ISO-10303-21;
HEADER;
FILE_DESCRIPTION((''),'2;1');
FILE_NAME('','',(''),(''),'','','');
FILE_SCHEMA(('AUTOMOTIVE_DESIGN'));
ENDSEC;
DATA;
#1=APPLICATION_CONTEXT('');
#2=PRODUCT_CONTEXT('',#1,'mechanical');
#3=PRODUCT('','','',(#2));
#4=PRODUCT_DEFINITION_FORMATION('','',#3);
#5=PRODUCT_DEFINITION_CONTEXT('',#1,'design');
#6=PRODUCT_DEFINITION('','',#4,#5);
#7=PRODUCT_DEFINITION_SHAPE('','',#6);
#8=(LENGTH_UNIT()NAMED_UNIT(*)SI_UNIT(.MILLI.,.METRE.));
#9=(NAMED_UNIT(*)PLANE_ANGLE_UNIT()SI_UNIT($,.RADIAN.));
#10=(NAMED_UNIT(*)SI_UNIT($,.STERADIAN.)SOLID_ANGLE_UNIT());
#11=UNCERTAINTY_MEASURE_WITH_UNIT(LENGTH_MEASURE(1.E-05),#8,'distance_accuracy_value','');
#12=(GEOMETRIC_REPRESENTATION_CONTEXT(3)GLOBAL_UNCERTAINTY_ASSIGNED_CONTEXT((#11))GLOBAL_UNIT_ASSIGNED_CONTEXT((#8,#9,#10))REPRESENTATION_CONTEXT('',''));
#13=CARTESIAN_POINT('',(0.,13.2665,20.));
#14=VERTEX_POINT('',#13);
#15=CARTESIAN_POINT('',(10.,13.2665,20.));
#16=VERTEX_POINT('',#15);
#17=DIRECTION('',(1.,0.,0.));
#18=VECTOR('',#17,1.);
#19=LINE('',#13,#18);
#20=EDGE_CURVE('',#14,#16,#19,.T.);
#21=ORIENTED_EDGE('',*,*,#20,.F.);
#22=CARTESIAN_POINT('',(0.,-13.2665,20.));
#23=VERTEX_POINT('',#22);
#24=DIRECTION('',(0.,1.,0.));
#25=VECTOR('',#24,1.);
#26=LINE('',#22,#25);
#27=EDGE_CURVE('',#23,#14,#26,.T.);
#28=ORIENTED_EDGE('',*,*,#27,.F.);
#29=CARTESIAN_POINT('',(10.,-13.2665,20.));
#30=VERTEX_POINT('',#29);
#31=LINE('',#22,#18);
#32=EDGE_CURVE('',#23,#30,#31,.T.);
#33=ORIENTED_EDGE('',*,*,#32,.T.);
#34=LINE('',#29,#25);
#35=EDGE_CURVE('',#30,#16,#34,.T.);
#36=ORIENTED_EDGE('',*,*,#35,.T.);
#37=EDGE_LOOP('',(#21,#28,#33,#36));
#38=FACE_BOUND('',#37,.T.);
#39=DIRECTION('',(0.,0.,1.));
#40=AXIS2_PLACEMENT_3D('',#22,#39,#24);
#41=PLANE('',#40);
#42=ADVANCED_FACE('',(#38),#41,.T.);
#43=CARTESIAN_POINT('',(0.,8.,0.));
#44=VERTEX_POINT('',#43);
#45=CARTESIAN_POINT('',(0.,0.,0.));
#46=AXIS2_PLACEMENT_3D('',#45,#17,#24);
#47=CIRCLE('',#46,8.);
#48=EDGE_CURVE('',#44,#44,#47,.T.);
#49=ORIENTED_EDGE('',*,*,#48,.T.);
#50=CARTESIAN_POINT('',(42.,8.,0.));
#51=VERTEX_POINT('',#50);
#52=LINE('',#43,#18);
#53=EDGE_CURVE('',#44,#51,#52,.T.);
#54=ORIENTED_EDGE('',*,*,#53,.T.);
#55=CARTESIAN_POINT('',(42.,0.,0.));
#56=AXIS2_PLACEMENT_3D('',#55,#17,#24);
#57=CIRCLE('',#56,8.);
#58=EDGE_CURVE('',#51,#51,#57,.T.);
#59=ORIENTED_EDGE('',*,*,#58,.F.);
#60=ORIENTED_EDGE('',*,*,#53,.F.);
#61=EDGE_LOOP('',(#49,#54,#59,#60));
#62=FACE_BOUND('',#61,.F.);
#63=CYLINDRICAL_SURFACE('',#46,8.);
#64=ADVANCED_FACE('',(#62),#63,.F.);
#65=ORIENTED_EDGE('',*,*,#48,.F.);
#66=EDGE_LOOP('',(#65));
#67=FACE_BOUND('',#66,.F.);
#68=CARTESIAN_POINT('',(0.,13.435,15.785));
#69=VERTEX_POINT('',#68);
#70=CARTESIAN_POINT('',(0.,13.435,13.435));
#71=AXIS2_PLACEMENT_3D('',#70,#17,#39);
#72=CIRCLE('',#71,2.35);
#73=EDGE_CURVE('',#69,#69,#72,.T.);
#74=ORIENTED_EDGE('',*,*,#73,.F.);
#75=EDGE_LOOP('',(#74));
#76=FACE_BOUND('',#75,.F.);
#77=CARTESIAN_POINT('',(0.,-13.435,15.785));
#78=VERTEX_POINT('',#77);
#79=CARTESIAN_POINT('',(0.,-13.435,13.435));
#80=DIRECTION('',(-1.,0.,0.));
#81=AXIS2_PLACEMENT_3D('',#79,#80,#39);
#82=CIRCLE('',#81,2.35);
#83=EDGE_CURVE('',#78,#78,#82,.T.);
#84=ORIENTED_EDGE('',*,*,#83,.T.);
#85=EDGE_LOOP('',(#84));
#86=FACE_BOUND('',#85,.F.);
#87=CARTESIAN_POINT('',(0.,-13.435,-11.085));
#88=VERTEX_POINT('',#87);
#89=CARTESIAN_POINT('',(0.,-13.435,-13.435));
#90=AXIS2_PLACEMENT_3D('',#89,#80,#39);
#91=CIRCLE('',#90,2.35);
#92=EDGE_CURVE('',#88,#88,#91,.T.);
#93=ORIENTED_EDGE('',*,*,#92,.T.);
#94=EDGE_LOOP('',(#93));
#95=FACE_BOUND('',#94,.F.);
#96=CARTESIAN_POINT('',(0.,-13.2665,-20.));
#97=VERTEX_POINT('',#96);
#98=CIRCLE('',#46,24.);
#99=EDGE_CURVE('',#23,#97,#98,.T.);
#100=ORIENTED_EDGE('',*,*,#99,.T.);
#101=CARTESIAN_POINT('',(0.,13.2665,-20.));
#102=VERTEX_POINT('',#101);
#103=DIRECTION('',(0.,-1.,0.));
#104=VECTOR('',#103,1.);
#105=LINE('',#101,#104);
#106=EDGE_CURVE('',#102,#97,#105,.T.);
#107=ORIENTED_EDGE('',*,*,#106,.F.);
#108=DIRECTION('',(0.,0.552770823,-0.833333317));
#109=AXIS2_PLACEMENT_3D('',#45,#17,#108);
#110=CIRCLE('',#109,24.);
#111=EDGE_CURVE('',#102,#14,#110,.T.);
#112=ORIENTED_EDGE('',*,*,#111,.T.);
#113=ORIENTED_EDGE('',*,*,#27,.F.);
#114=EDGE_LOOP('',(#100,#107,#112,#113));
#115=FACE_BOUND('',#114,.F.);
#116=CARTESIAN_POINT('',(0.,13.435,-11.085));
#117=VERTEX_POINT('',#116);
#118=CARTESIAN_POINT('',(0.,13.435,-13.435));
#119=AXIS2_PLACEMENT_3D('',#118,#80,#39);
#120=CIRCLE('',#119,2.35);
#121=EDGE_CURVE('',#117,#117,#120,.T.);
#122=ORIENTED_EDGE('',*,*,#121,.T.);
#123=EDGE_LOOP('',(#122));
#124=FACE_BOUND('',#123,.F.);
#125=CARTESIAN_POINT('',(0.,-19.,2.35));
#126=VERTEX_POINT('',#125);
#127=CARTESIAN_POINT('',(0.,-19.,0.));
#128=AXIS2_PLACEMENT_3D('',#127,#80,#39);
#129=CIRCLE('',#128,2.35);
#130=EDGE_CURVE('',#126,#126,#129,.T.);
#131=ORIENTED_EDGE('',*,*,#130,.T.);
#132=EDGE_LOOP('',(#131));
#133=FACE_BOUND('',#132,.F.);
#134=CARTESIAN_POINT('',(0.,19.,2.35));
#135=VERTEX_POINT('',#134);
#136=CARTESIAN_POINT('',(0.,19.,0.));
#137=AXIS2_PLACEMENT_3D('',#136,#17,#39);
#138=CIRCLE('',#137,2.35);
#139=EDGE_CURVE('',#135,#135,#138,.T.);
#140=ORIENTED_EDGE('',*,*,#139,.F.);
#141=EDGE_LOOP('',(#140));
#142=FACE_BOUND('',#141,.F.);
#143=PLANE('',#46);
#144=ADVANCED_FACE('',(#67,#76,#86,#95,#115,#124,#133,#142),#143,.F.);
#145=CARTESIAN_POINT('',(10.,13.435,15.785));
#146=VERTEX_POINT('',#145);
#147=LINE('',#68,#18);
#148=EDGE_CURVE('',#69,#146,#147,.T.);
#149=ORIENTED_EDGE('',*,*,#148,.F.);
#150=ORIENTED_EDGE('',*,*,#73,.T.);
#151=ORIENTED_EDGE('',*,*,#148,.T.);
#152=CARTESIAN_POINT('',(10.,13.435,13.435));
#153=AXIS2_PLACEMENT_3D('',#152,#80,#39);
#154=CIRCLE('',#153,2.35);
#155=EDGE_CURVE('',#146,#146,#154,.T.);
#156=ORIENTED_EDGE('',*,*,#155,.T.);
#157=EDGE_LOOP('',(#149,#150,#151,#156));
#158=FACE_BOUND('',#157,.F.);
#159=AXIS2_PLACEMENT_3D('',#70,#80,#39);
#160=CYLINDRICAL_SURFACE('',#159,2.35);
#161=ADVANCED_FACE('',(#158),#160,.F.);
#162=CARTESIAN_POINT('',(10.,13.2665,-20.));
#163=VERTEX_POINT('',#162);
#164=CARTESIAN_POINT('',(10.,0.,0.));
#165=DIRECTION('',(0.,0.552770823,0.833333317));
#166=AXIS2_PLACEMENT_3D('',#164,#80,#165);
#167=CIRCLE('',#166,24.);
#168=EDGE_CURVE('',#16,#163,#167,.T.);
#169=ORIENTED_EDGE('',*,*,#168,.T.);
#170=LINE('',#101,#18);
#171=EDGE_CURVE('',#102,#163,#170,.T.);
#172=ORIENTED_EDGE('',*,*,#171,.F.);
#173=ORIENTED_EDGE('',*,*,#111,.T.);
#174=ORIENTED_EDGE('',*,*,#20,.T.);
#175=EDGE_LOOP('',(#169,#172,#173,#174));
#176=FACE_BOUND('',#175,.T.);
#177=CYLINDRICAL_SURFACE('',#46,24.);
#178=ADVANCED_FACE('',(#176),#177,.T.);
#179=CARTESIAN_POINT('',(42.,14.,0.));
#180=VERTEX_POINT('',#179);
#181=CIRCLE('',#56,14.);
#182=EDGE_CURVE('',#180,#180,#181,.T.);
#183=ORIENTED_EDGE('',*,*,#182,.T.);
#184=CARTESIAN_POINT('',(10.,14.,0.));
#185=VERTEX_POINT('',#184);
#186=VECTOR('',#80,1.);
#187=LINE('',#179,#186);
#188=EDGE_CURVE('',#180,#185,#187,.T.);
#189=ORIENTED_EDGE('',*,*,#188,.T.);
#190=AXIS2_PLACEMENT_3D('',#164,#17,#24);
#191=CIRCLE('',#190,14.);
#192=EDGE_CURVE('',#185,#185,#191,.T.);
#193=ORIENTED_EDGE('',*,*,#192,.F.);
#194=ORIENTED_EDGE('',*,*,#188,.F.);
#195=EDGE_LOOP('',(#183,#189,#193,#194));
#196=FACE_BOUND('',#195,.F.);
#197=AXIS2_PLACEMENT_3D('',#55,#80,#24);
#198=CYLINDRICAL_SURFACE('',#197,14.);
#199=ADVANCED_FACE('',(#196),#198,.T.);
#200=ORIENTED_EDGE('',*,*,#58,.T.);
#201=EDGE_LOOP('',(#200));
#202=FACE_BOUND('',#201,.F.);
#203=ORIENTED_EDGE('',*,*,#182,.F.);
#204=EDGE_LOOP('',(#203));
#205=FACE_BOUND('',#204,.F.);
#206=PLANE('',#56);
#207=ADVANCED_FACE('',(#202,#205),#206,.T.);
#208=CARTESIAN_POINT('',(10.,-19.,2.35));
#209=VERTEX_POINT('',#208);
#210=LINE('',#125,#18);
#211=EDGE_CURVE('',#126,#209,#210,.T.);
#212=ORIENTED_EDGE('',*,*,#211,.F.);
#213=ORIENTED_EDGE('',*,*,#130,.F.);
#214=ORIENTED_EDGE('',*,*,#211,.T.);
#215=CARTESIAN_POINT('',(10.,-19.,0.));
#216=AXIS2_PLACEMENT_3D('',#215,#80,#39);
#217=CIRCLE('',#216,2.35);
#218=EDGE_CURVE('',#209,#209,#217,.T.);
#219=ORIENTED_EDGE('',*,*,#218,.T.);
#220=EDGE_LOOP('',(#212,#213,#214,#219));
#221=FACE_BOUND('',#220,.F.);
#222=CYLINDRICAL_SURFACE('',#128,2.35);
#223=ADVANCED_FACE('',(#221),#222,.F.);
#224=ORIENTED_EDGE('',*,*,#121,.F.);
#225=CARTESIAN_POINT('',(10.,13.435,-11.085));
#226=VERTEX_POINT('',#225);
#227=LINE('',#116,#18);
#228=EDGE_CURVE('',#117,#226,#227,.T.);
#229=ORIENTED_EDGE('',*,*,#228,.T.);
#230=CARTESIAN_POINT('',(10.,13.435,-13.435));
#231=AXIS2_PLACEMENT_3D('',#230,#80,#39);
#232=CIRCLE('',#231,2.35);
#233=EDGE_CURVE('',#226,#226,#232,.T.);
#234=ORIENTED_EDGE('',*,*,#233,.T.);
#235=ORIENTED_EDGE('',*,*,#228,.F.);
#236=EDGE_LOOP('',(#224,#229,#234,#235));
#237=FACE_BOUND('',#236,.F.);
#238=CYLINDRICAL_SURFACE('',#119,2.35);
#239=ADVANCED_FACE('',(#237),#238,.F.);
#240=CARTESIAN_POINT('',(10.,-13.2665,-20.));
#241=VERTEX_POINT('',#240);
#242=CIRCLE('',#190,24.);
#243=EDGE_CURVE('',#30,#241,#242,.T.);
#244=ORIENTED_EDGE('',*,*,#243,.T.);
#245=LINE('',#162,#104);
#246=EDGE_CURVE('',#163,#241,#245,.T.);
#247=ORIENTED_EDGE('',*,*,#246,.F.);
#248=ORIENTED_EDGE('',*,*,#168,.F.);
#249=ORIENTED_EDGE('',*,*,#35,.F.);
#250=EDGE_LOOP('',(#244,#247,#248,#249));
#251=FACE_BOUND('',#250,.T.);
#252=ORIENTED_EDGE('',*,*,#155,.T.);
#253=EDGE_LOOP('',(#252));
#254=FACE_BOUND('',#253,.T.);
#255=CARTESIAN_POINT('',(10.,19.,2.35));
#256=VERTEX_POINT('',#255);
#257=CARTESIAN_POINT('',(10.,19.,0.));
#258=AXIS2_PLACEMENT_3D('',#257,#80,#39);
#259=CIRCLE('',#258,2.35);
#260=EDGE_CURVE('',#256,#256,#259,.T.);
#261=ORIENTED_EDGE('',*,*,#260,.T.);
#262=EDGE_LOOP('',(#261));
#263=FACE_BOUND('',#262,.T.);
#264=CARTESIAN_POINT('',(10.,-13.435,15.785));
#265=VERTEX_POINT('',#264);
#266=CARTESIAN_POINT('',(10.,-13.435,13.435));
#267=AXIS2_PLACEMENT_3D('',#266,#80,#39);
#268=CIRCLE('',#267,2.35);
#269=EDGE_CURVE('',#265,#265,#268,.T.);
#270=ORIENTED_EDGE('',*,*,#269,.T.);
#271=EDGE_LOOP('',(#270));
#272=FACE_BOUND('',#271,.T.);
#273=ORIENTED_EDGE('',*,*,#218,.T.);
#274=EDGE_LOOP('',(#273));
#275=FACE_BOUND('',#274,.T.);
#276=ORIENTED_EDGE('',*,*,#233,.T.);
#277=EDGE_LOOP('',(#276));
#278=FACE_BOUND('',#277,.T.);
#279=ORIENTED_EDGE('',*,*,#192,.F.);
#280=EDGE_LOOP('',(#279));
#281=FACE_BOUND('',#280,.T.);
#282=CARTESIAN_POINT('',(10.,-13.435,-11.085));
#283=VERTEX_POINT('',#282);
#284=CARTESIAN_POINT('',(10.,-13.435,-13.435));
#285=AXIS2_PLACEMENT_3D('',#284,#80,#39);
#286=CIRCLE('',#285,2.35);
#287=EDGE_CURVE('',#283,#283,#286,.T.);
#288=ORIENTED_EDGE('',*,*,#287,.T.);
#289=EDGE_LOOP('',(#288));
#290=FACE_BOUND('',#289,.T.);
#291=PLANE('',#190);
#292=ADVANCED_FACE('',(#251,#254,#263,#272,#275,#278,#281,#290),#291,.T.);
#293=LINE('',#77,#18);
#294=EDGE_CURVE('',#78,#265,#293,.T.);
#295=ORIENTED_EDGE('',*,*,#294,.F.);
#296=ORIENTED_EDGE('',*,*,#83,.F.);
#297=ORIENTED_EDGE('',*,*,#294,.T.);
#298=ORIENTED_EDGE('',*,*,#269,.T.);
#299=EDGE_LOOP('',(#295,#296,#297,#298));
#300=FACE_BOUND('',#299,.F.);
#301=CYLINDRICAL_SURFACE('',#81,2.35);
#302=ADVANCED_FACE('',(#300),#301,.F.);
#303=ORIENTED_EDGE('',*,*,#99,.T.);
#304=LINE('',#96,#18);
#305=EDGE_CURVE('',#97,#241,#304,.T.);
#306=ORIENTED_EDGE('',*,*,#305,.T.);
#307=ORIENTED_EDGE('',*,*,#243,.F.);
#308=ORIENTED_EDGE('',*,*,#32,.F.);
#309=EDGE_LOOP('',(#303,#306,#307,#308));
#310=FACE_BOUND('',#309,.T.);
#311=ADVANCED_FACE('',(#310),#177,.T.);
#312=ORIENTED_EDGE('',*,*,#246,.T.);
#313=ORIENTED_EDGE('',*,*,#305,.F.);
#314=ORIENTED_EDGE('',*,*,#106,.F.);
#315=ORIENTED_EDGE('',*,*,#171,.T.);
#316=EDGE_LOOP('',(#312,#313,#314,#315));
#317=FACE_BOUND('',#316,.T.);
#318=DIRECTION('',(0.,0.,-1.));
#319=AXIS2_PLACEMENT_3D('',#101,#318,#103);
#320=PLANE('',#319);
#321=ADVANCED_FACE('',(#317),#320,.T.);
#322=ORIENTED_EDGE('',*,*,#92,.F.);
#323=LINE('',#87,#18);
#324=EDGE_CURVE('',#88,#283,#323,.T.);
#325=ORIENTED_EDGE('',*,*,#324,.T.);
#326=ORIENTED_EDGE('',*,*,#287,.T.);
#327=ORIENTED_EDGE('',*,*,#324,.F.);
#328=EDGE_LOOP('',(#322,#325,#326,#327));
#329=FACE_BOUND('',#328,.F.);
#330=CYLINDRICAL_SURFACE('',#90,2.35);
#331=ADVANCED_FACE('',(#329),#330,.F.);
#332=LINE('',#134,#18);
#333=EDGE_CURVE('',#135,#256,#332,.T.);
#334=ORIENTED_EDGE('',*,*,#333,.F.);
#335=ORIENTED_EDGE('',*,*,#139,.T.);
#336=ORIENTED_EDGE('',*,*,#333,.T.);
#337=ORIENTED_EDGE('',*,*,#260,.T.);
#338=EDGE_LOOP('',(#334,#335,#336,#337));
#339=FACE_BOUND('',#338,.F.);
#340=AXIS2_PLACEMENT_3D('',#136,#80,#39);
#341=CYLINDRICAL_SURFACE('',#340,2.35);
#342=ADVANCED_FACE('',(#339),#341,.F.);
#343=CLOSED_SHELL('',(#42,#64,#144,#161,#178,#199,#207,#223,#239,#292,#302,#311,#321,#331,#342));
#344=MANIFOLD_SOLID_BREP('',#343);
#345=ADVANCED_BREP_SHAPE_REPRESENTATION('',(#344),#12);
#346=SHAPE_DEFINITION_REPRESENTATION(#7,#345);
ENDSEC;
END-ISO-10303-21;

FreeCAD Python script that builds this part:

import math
import FreeCAD as App
import Part
import Sketcher

V = App.Vector
Q = App.Units.Quantity

doc = App.newDocument("Part")
body = doc.addObject("PartDesign::Body", "Body")

sketch1 = body.newObject("Sketcher::SketchObject", "Sketch")
sketch1.AttachmentSupport = (doc.getObject("XY_Plane"), [""])
sketch1.MapMode = "FlatFace"
sketch1.addGeometry(Part.LineSegment(V(10, 24, 0), V(0, 24, 0)), False)
sketch1.addGeometry(Part.LineSegment(V(0, 24, 0), V(0, 8, 0)), False)
sketch1.addGeometry(Part.LineSegment(V(0, 8, 0), V(42, 8, 0)), False)
sketch1.addGeometry(Part.LineSegment(V(42, 8, 0), V(42, 14, 0)), False)
sketch1.addGeometry(Part.LineSegment(V(42, 14, 0), V(10, 14, 0)), False)
sketch1.addGeometry(Part.LineSegment(V(10, 14, 0), V(10, 24, 0)), False)
sketch1.addConstraint(Sketcher.Constraint("Coincident", 0, 2, 1, 1))
sketch1.addConstraint(Sketcher.Constraint("Coincident", 1, 2, 2, 1))
sketch1.addConstraint(Sketcher.Constraint("Coincident", 2, 2, 3, 1))
sketch1.addConstraint(Sketcher.Constraint("Coincident", 3, 2, 4, 1))
sketch1.addConstraint(Sketcher.Constraint("Coincident", 4, 2, 5, 1))
sketch1.addConstraint(Sketcher.Constraint("Coincident", 5, 2, 0, 1))
sketch1.addConstraint(Sketcher.Constraint("Horizontal", 0))
sketch1.addConstraint(Sketcher.Constraint("Vertical", 1))
sketch1.addConstraint(Sketcher.Constraint("Horizontal", 2))
sketch1.addConstraint(Sketcher.Constraint("Vertical", 3))
sketch1.addConstraint(Sketcher.Constraint("Horizontal", 4))
sketch1.addConstraint(Sketcher.Constraint("Vertical", 5))
sketch1.addConstraint(Sketcher.Constraint("PointOnObject", 0, 2, -2))
sketch1.addConstraint(Sketcher.Constraint("Equal", 0, 5))
sketch1.addConstraint(Sketcher.Constraint("DistanceX", 0, 2, 0, 1, Q("10 mm")))
sketch1.addConstraint(Sketcher.Constraint("DistanceX", 2, 1, 2, 2, Q("42 mm")))
sketch1.addConstraint(Sketcher.Constraint("DistanceY", -1, 1, 0, 2, Q("24 mm")))
sketch1.addConstraint(Sketcher.Constraint("DistanceY", -1, 1, 1, 2, Q("8 mm")))
revolution = body.newObject("PartDesign::Revolution", "Revolution")
revolution.Profile = sketch1
revolution.ReferenceAxis = (sketch1, ["H_Axis"])
revolution.Angle = 360

sketch2 = body.newObject("Sketcher::SketchObject", "Sketch001")
sketch2.AttachmentSupport = (doc.getObject("YZ_Plane"), [""])
sketch2.MapMode = "FlatFace"
sketch2.addGeometry(Part.LineSegment(V(-13.2665, -20, 0), V(13.2665, -20, 0)), False)
sketch2.addGeometry(Part.ArcOfCircle(Part.Circle(V(0, 0, 0), V(0, 0, 1), 24), math.radians(-123.557311), math.radians(-56.442689)), False)
sketch2.addGeometry(Part.ArcOfCircle(Part.Circle(V(0, 0, 0), V(0, 0, 1), 24), math.radians(56.442689), math.radians(123.557311)), False)
sketch2.addGeometry(Part.LineSegment(V(13.2665, 20, 0), V(-13.2665, 20, 0)), False)
sketch2.addGeometry(Part.Circle(V(13.435, -13.435, 0), V(0, 0, 1), 2.35), False)
sketch2.addGeometry(Part.Circle(V(19, 0, 0), V(0, 0, 1), 2.35), False)
sketch2.addGeometry(Part.Circle(V(13.435, 13.435, 0), V(0, 0, 1), 2.35), False)
sketch2.addGeometry(Part.Circle(V(-13.435, -13.435, 0), V(0, 0, 1), 2.35), False)
sketch2.addGeometry(Part.Circle(V(-13.435, 13.435, 0), V(0, 0, 1), 2.35), False)
sketch2.addGeometry(Part.Circle(V(-19, 0, 0), V(0, 0, 1), 2.35), False)
sketch2.addConstraint(Sketcher.Constraint("Coincident", 0, 1, 1, 1))
sketch2.addConstraint(Sketcher.Constraint("Coincident", 1, 2, 0, 2))
sketch2.addConstraint(Sketcher.Constraint("Coincident", 2, 1, 3, 1))
sketch2.addConstraint(Sketcher.Constraint("Coincident", 3, 2, 2, 2))
sketch2.addConstraint(Sketcher.Constraint("Horizontal", 0))
sketch2.addConstraint(Sketcher.Constraint("Horizontal", 3))
sketch2.addConstraint(Sketcher.Constraint("Coincident", 1, 3, -1, 1))
sketch2.addConstraint(Sketcher.Constraint("Coincident", 2, 3, -1, 1))
sketch2.addConstraint(Sketcher.Constraint("Equal", 1, 2))
sketch2.addConstraint(Sketcher.Constraint("Equal", 4, 5))
sketch2.addConstraint(Sketcher.Constraint("Equal", 5, 6))
sketch2.addConstraint(Sketcher.Constraint("Equal", 6, 7))
sketch2.addConstraint(Sketcher.Constraint("Equal", 7, 8))
sketch2.addConstraint(Sketcher.Constraint("Equal", 8, 9))
sketch2.addConstraint(Sketcher.Constraint("Symmetric", 6, 3, 7, 3, -1, 1))
sketch2.addConstraint(Sketcher.Constraint("Symmetric", 4, 3, 8, 3, -1, 1))
sketch2.addConstraint(Sketcher.Constraint("Symmetric", 5, 3, 9, 3, -1, 1))
sketch2.addConstraint(Sketcher.Constraint("Symmetric", 4, 3, 7, 3, -2))
sketch2.addConstraint(Sketcher.Constraint("PointOnObject", 5, 3, -1))
sketch2.addConstraint(Sketcher.Constraint("Vertical", 1, 2, 2, 1))
sketch2.addConstraint(Sketcher.Constraint("Diameter", 4, Q("4.7 mm")))
sketch2.addConstraint(Sketcher.Constraint("Radius", 1, Q("24 mm")))
sketch2.addConstraint(Sketcher.Constraint("DistanceX", -1, 1, 5, 3, Q("19 mm")))
sketch2.addConstraint(Sketcher.Constraint("DistanceY", 0, 1, -1, 1, Q("20 mm")))
sketch2.addConstraint(Sketcher.Constraint("DistanceY", 4, 3, 6, 3, Q("26.87 mm")))
sketch2.addConstraint(Sketcher.Constraint("DistanceX", 7, 3, 4, 3, Q("26.87 mm")))
pocket1 = body.newObject("PartDesign::Pocket", "Pocket")
pocket1.Profile = sketch2
pocket1.Length = 10
pocket1.Reversed = True

doc.recompute()
